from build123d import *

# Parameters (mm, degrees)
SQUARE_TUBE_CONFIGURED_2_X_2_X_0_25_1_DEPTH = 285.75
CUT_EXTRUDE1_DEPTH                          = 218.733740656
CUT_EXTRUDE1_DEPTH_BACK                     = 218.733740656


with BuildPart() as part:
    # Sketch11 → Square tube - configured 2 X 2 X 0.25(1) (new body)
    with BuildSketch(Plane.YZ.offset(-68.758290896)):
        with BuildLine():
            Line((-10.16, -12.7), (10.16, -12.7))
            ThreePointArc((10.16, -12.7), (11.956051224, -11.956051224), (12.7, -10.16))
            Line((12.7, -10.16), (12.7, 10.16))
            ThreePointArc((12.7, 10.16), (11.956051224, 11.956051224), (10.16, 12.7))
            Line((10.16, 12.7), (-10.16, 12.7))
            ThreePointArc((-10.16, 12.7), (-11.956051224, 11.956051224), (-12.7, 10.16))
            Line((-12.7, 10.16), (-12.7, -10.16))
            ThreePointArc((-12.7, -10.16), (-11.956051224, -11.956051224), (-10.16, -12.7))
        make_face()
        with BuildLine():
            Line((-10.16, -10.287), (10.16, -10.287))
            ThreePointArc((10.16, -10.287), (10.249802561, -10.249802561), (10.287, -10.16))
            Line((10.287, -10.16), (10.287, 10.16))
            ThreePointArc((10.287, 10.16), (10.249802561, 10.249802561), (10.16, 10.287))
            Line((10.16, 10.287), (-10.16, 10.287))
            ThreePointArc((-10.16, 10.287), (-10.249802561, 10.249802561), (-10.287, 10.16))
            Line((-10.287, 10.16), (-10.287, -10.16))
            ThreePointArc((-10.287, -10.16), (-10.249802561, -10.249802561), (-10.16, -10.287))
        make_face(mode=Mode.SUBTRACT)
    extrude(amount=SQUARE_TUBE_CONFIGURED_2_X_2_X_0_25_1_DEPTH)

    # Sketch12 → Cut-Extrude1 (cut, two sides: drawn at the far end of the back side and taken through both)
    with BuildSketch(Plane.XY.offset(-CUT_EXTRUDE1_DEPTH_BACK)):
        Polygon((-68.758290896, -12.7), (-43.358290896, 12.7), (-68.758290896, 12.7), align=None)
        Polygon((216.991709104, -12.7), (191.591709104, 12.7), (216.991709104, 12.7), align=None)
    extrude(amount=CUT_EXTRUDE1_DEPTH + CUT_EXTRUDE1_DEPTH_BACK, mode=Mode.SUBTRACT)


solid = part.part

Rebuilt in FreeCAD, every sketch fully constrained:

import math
import FreeCAD as App
import Part
import Sketcher
from FreeCAD import Vector
Q = App.Units.Quantity

doc = App.newDocument("Part")
params = doc.addObject("Spreadsheet::Sheet", "Params")
for row, (alias, value) in enumerate([
    ("sketch1_radius", "0.1 in"),
    ("sketch1_width", "0.8 in"),
    ("sketch1_radius2", "0.005 in"),
    ("pad1_length", "11.25 in"),
    ("sketch2_width", "1 in"),
], start=1):
    params.set(f"A{row}", alias)
    params.set(f"B{row}", "=" + value)
    params.setAlias(f"B{row}", alias)

body = doc.addObject("PartDesign::Body", "Body")

# Sketch on YZ plane
sketch1 = body.newObject("Sketcher::SketchObject", "Sketch")
sketch1.AttachmentSupport = (doc.getObject("YZ_Plane"), [""])
sketch1.MapMode = "FlatFace"
sketch1.AttachmentOffset = App.Placement(Vector(0, 0, -68.758291), App.Rotation())
sketch1.addGeometry([
    Part.LineSegment(Vector(-10.16, -12.7, 0), Vector(10.16, -12.7, 0)),  # 0
    Part.ArcOfCircle(Part.Circle(Vector(10.16, -10.16, 0), Vector(0, 0, 1), 2.54), math.radians(-90), math.radians(0)),  # 1
    Part.LineSegment(Vector(12.7, -10.16, 0), Vector(12.7, 10.16, 0)),  # 2
    Part.ArcOfCircle(Part.Circle(Vector(10.16, 10.16, 0), Vector(0, 0, 1), 2.54), math.radians(0), math.radians(90)),  # 3
    Part.LineSegment(Vector(10.16, 12.7, 0), Vector(-10.16, 12.7, 0)),  # 4
    Part.ArcOfCircle(Part.Circle(Vector(-10.16, 10.16, 0), Vector(0, 0, 1), 2.54), math.radians(90), math.radians(180)),  # 5
    Part.LineSegment(Vector(-12.7, 10.16, 0), Vector(-12.7, -10.16, 0)),  # 6
    Part.ArcOfCircle(Part.Circle(Vector(-10.16, -10.16, 0), Vector(0, 0, 1), 2.54), math.radians(-180), math.radians(-90)),  # 7
    Part.LineSegment(Vector(10.16, -10.29, 0), Vector(-10.16, -10.29, 0)),  # 8
    Part.ArcOfCircle(Part.Circle(Vector(-10.16, -10.16, 0), Vector(0, 0, 1), 0.13), math.radians(-180), math.radians(-90)),  # 9
    Part.LineSegment(Vector(-10.29, -10.16, 0), Vector(-10.29, 10.16, 0)),  # 10
    Part.ArcOfCircle(Part.Circle(Vector(-10.16, 10.16, 0), Vector(0, 0, 1), 0.13), math.radians(90), math.radians(180)),  # 11
    Part.LineSegment(Vector(-10.16, 10.29, 0), Vector(10.16, 10.29, 0)),  # 12
    Part.ArcOfCircle(Part.Circle(Vector(10.16, 10.16, 0), Vector(0, 0, 1), 0.13), math.radians(0), math.radians(90)),  # 13
    Part.LineSegment(Vector(10.29, 10.16, 0), Vector(10.29, -10.16, 0)),  # 14
    Part.ArcOfCircle(Part.Circle(Vector(10.16, -10.16, 0), Vector(0, 0, 1), 0.13), math.radians(-90), math.radians(0)),  # 15
], False)
sketch1.addConstraint([
    Sketcher.Constraint("Tangent", 0, 2, 1, 1),
    Sketcher.Constraint("Tangent", 1, 2, 2, 1),
    Sketcher.Constraint("Tangent", 2, 2, 3, 1),
    Sketcher.Constraint("Tangent", 3, 2, 4, 1),
    Sketcher.Constraint("Tangent", 4, 2, 5, 1),
    Sketcher.Constraint("Tangent", 5, 2, 6, 1),
    Sketcher.Constraint("Tangent", 6, 2, 7, 1),
    Sketcher.Constraint("Tangent", 7, 2, 0, 1),
    Sketcher.Constraint("Tangent", 8, 2, 9, 2),
    Sketcher.Constraint("Tangent", 9, 1, 10, 1),
    Sketcher.Constraint("Tangent", 10, 2, 11, 2),
    Sketcher.Constraint("Tangent", 11, 1, 12, 1),
    Sketcher.Constraint("Tangent", 12, 2, 13, 2),
    Sketcher.Constraint("Tangent", 13, 1, 14, 1),
    Sketcher.Constraint("Tangent", 14, 2, 15, 2),
    Sketcher.Constraint("Tangent", 15, 1, 8, 1),
    Sketcher.Constraint("Horizontal", 0),
    Sketcher.Constraint("Vertical", 2),
    Sketcher.Constraint("Horizontal", 4),
    Sketcher.Constraint("Vertical", 6),
    Sketcher.Constraint("Horizontal", 8),
    Sketcher.Constraint("Vertical", 10),
    Sketcher.Constraint("Horizontal", 12),
    Sketcher.Constraint("Vertical", 14),
    Sketcher.Constraint("Coincident", 9, 3, 7, 3),
    Sketcher.Constraint("Coincident", 11, 3, 5, 3),
    Sketcher.Constraint("Coincident", 13, 3, 3, 3),
    Sketcher.Constraint("Equal", 1, 3),
    Sketcher.Constraint("Equal", 3, 5),
    Sketcher.Constraint("Equal", 5, 7),
    Sketcher.Constraint("Equal", 13, 15),
    Sketcher.Constraint("Symmetric", 1, 3, 5, 3, -1, 1),
    Sketcher.Constraint("Equal", 12, 2),
    Sketcher.Constraint("Radius", 1, Q("0.1 in")),
    Sketcher.Constraint("DistanceX", 0, 1, 0, 2, Q("0.8 in")),
    Sketcher.Constraint("Radius", 9, Q("0.005 in")),
])
sketch1.setExpression("Constraints[33]", "Params.sketch1_radius")
sketch1.setExpression("Constraints[34]", "Params.sketch1_width")
sketch1.setExpression("Constraints[35]", "Params.sketch1_radius2")
pad1 = body.newObject("PartDesign::Pad", "Pad")
pad1.Profile = sketch1
pad1.setExpression("Length", "Params.pad1_length")

# Sketch on XY plane
sketch2 = body.newObject("Sketcher::SketchObject", "Sketch001")
sketch2.AttachmentSupport = (doc.getObject("XY_Plane"), [""])
sketch2.MapMode = "FlatFace"
sketch2.addGeometry([
    Part.LineSegment(Vector(-69, -13, 0), Vector(-43, 13, 0)),  # 0
    Part.LineSegment(Vector(-43, 13, 0), Vector(-69, 13, 0)),  # 1
    Part.LineSegment(Vector(-69, 13, 0), Vector(-69, -13, 0)),  # 2
    Part.LineSegment(Vector(192, 13, 0), Vector(217, -13, 0)),  # 3
    Part.LineSegment(Vector(217, -13, 0), Vector(217, 13, 0)),  # 4
    Part.LineSegment(Vector(217, 13, 0), Vector(192, 13, 0)),  # 5
], False)
sketch2.addConstraint([
    Sketcher.Constraint("Coincident", 0, 2, 1, 1),
    Sketcher.Constraint("Coincident", 1, 2, 2, 1),
    Sketcher.Constraint("Coincident", 2, 2, 0, 1),
    Sketcher.Constraint("Coincident", 3, 2, 4, 1),
    Sketcher.Constraint("Coincident", 4, 2, 5, 1),
    Sketcher.Constraint("Coincident", 5, 2, 3, 1),
    Sketcher.Constraint("Horizontal", 1),
    Sketcher.Constraint("Vertical", 2),
    Sketcher.Constraint("Vertical", 4),
    Sketcher.Constraint("Horizontal", 5),
    Sketcher.Constraint("Perpendicular", 0, 3),
    Sketcher.Constraint("Horizontal", 2, 2, 3, 2),
    Sketcher.Constraint("Horizontal", 1, 2, 4, 2),
    Sketcher.Constraint("Equal", 1, 5),
    Sketcher.Constraint("DistanceX", 1, 2, 1, 1, Q("1 in")),
    Sketcher.Constraint("DistanceY", -1, 1, 0, 2, Q("0.5 in")),
    Sketcher.Constraint("DistanceX", 0, 2, 3, 2, Q("10.25 in")),
    Sketcher.Constraint("DistanceX", 0, 2, -1, 1, Q("43.358291 mm")),
])
sketch2.setExpression("Constraints[14]", "Params.sketch2_width")
pocket1 = body.newObject("PartDesign::Pocket", "Pocket")
pocket1.Profile = sketch2
pocket1.Type = "ThroughAll"
pocket1.Midplane = True

doc.recompute()
